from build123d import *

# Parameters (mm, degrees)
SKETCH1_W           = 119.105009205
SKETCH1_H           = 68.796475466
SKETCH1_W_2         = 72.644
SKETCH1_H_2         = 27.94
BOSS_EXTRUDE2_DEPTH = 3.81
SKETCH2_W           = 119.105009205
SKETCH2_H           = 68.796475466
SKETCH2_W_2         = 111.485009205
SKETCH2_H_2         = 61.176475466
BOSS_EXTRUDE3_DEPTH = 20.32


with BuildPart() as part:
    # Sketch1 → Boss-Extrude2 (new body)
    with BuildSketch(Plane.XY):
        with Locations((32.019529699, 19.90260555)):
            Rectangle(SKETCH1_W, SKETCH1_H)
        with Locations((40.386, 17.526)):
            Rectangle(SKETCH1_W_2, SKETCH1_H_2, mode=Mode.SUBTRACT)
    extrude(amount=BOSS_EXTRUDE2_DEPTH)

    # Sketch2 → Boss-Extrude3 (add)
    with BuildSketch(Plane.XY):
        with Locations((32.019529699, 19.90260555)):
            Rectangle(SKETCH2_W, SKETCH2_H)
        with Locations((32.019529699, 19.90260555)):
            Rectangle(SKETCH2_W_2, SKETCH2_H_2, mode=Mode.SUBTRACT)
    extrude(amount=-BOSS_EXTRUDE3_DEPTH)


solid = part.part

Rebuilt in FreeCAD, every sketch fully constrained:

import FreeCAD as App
import Part
import Sketcher
Q = App.Units.Quantity


def add_polygon(sketch, points):
    """Adds a closed chain of lines whose ends are joined by coincident constraints."""
    first, n = sketch.GeometryCount, len(points)
    for a, b in zip(points, points[1:] + points[:1]):
        sketch.addGeometry(Part.LineSegment(App.Vector(*a, 0), App.Vector(*b, 0)), False)
    for i in range(n):
        sketch.addConstraint(Sketcher.Constraint("Coincident", first + i, 2, first + (i + 1) % n, 1))

doc = App.newDocument("Part")
params = doc.addObject("Spreadsheet::Sheet", "Params")
for row, (alias, value) in enumerate([
    ("sketch1_height", "1.1 in"),
    ("sketch1_width", "2.86 in"),
    ("pad1_length", "0.15 in"),
    ("pad2_length", "0.8 in"),
], start=1):
    params.set(f"A{row}", alias)
    params.set(f"B{row}", "=" + value)
    params.setAlias(f"B{row}", alias)

body = doc.addObject("PartDesign::Body", "Body")

# Sketch on XY plane
sketch1 = body.newObject("Sketcher::SketchObject", "Sketch")
sketch1.AttachmentSupport = (doc.getObject("XY_Plane"), [""])
sketch1.MapMode = "FlatFace"
add_polygon(sketch1, [(-28, 54), (-28, -14), (92, -14), (92, 54)])  # lines 0-3
add_polygon(sketch1, [(77, 4), (4, 4), (4, 31), (77, 31)])  # lines 4-7
sketch1.addConstraint([
    Sketcher.Constraint("Vertical", 0),
    Sketcher.Constraint("Horizontal", 1),
    Sketcher.Constraint("Vertical", 2),
    Sketcher.Constraint("Horizontal", 3),
    Sketcher.Constraint("Horizontal", 4),
    Sketcher.Constraint("Vertical", 5),
    Sketcher.Constraint("Horizontal", 6),
    Sketcher.Constraint("Vertical", 7),
    Sketcher.Constraint("DistanceY", 5, 1, 5, 2, Q("1.1 in")),
    Sketcher.Constraint("DistanceX", 4, 2, 4, 1, Q("2.86 in")),
    Sketcher.Constraint("DistanceX", -1, 1, 4, 2, Q("0.16 in")),
    Sketcher.Constraint("DistanceY", -1, 1, 4, 2, Q("0.14 in")),
    Sketcher.Constraint("DistanceX", 1, 1, 1, 2, 119.105009),
    Sketcher.Constraint("DistanceY", 0, 2, 0, 1, 68.796475),
    Sketcher.Constraint("DistanceX", 0, 2, -1, 1, 27.532975),
    Sketcher.Constraint("DistanceY", 0, 2, -1, 1, 14.495632),
])
sketch1.setExpression("Constraints[16]", "Params.sketch1_height")
sketch1.setExpression("Constraints[17]", "Params.sketch1_width")
pad1 = body.newObject("PartDesign::Pad", "Pad")
pad1.Profile = sketch1
pad1.setExpression("Length", "Params.pad1_length")

# Sketch on XY plane
sketch2 = body.newObject("Sketcher::SketchObject", "Sketch001")
sketch2.AttachmentSupport = (doc.getObject("XY_Plane"), [""])
sketch2.MapMode = "FlatFace"
add_polygon(sketch2, [(-28, 54), (-28, -14), (92, -14), (92, 54)])  # lines 0-3
add_polygon(sketch2, [(88, -11), (-24, -11), (-24, 50), (88, 50)])  # lines 4-7
sketch2.addConstraint([
    Sketcher.Constraint("Vertical", 0),
    Sketcher.Constraint("Horizontal", 1),
    Sketcher.Constraint("Vertical", 2),
    Sketcher.Constraint("Horizontal", 3),
    Sketcher.Constraint("Horizontal", 4),
    Sketcher.Constraint("Vertical", 5),
    Sketcher.Constraint("Horizontal", 6),
    Sketcher.Constraint("Vertical", 7),
    Sketcher.Constraint("DistanceX", 0, 2, 4, 2, Q("0.15 in")),
    Sketcher.Constraint("DistanceY", 0, 2, 4, 2, Q("0.15 in")),
    Sketcher.Constraint("DistanceY", 5, 2, 3, 2, Q("0.15 in")),
    Sketcher.Constraint("DistanceX", 6, 2, 2, 2, Q("0.15 in")),
    Sketcher.Constraint("DistanceX", 1, 1, 1, 2, 119.105009),
    Sketcher.Constraint("DistanceY", 0, 2, 0, 1, 68.796475),
    Sketcher.Constraint("DistanceX", 0, 2, -1, 1, 27.532975),
    Sketcher.Constraint("DistanceY", 0, 2, -1, 1, 14.495632),
])
pad2 = body.newObject("PartDesign::Pad", "Pad001")
pad2.Profile = sketch2
pad2.setExpression("Length", "Params.pad2_length")
pad2.Reversed = True

doc.recompute()
